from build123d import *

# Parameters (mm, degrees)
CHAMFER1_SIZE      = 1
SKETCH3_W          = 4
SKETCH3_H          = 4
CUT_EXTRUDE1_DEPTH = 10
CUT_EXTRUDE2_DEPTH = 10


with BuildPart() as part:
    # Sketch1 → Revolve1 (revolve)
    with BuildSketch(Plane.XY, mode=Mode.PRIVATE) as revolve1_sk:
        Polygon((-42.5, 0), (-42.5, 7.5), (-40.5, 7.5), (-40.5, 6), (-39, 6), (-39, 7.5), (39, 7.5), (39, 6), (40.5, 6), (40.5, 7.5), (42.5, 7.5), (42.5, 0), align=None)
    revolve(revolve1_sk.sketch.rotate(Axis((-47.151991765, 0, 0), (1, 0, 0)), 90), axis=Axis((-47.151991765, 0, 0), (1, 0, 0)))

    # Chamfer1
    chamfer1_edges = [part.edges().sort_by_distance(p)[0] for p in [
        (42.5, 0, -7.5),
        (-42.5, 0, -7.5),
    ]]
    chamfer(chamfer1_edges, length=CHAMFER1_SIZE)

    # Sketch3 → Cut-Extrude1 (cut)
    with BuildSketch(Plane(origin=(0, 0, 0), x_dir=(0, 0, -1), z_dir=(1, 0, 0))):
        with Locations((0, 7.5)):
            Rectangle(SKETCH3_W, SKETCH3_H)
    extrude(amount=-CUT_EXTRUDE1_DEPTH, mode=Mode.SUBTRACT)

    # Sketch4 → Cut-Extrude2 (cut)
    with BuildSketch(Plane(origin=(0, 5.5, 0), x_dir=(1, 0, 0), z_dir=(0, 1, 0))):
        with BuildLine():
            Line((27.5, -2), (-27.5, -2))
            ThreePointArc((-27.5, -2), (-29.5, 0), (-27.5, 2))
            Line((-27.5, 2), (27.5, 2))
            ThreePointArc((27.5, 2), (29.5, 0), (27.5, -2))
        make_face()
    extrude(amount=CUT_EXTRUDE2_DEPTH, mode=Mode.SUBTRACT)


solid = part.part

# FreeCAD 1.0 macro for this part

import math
import FreeCAD as App
import Part
import Sketcher
Q = App.Units.Quantity


def edges_at(feature, points):
    """Names of the edges that pass closest to the given points."""
    edges = feature.Shape.Edges
    near = lambda p: min(range(len(edges)), key=lambda i: edges[i].distToShape(Part.Vertex(*p))[0])
    return sorted({f"Edge{near(p) + 1}" for p in points})

doc = App.newDocument("Part")
body = doc.addObject("PartDesign::Body", "Body")

# Sketch on XY plane
sketch1 = doc.addObject("Sketcher::SketchObject", "Sketch")
body.addObject(sketch1)
sketch1.AttachmentSupport = (doc.XY_Plane, [""])
sketch1.MapMode = "FlatFace"
sketch1.addGeometry([
    Part.LineSegment(App.Vector(-42.5, 7.5, 0), App.Vector(-42.5, 0, 0)),  # 0
    Part.LineSegment(App.Vector(-42.5, 0, 0), App.Vector(42.5, 0, 0)),  # 1
    Part.LineSegment(App.Vector(42.5, 0, 0), App.Vector(42.5, 7.5, 0)),  # 2
    Part.LineSegment(App.Vector(42.5, 7.5, 0), App.Vector(40.5, 7.5, 0)),  # 3
    Part.LineSegment(App.Vector(40.5, 7.5, 0), App.Vector(40.5, 6, 0)),  # 4
    Part.LineSegment(App.Vector(40.5, 6, 0), App.Vector(39, 6, 0)),  # 5
    Part.LineSegment(App.Vector(39, 6, 0), App.Vector(39, 7.5, 0)),  # 6
    Part.LineSegment(App.Vector(39, 7.5, 0), App.Vector(-39, 7.5, 0)),  # 7
    Part.LineSegment(App.Vector(-39, 7.5, 0), App.Vector(-39, 6, 0)),  # 8
    Part.LineSegment(App.Vector(-39, 6, 0), App.Vector(-40.5, 6, 0)),  # 9
    Part.LineSegment(App.Vector(-40.5, 6, 0), App.Vector(-40.5, 7.5, 0)),  # 10
    Part.LineSegment(App.Vector(-40.5, 7.5, 0), App.Vector(-42.5, 7.5, 0)),  # 11
], False)
sketch1.addConstraint([
    Sketcher.Constraint("Coincident", 0, 2, 1, 1),
    Sketcher.Constraint("Coincident", 1, 2, 2, 1),
    Sketcher.Constraint("Coincident", 2, 2, 3, 1),
    Sketcher.Constraint("Coincident", 3, 2, 4, 1),
    Sketcher.Constraint("Coincident", 4, 2, 5, 1),
    Sketcher.Constraint("Coincident", 5, 2, 6, 1),
    Sketcher.Constraint("Coincident", 6, 2, 7, 1),
    Sketcher.Constraint("Coincident", 7, 2, 8, 1),
    Sketcher.Constraint("Coincident", 8, 2, 9, 1),
    Sketcher.Constraint("Coincident", 9, 2, 10, 1),
    Sketcher.Constraint("Coincident", 10, 2, 11, 1),
    Sketcher.Constraint("Coincident", 11, 2, 0, 1),
    Sketcher.Constraint("Vertical", 0),
    Sketcher.Constraint("Horizontal", 1),
    Sketcher.Constraint("Vertical", 2),
    Sketcher.Constraint("Horizontal", 3),
    Sketcher.Constraint("Vertical", 4),
    Sketcher.Constraint("Horizontal", 5),
    Sketcher.Constraint("Vertical", 6),
    Sketcher.Constraint("Horizontal", 7),
    Sketcher.Constraint("Vertical", 8),
    Sketcher.Constraint("Horizontal", 9),
    Sketcher.Constraint("Vertical", 10),
    Sketcher.Constraint("Horizontal", 11),
    Sketcher.Constraint("Symmetric", 0, 2, 1, 2, -1, 1),
    Sketcher.Constraint("Symmetric", 5, 2, 8, 2, -2),
    Sketcher.Constraint("Symmetric", 3, 2, 10, 2, -2),
    Sketcher.Constraint("Horizontal", 3, 2, 6, 2),
    Sketcher.Constraint("Equal", 9, 4),
    Sketcher.Constraint("DistanceX", 1, 1, 1, 2, Q("85 mm")),
    Sketcher.Constraint("DistanceX", 3, 2, 3, 1, Q("2 mm")),
    Sketcher.Constraint("DistanceX", 7, 2, 7, 1, Q("78 mm")),
    Sketcher.Constraint("DistanceY", 0, 2, 0, 1, Q("7.5 mm")),
])
revolution = doc.addObject("PartDesign::Revolution", "Revolution")
body.addObject(revolution)
revolution.Profile = sketch1
revolution.ReferenceAxis = (sketch1, ["H_Axis"])
revolution.Angle = 360
doc.recompute()

chamfer = doc.addObject("PartDesign::Chamfer", "Chamfer")
body.addObject(chamfer)
chamfer.Base = (revolution, edges_at(revolution, [(42.5, 0, -7.5), (-42.5, 0, -7.5)]))
chamfer.Size = 1

# Sketch on YZ plane
sketch2 = doc.addObject("Sketcher::SketchObject", "Sketch001")
body.addObject(sketch2)
sketch2.AttachmentSupport = (doc.YZ_Plane, [""])
sketch2.MapMode = "FlatFace"
sketch2.addGeometry([
    Part.LineSegment(App.Vector(9.5, 2, 0), App.Vector(5.5, 2, 0)),
    Part.LineSegment(App.Vector(5.5, 2, 0), App.Vector(5.5, -2, 0)),
    Part.LineSegment(App.Vector(5.5, -2, 0), App.Vector(9.5, -2, 0)),
    Part.LineSegment(App.Vector(9.5, -2, 0), App.Vector(9.5, 2, 0)),
], False)
sketch2.addConstraint([
    Sketcher.Constraint("Coincident", 0, 2, 1, 1),
    Sketcher.Constraint("Coincident", 1, 2, 2, 1),
    Sketcher.Constraint("Coincident", 2, 2, 3, 1),
    Sketcher.Constraint("Coincident", 3, 2, 0, 1),
    Sketcher.Constraint("Horizontal", 0),
    Sketcher.Constraint("Vertical", 1),
    Sketcher.Constraint("Horizontal", 2),
    Sketcher.Constraint("Vertical", 3),
    Sketcher.Constraint("Equal", 2, 1),
    Sketcher.Constraint("DistanceX", 0, 2, 0, 1, Q("4 mm")),
    Sketcher.Constraint("DistanceY", -1, 1, 0, 2, Q("2 mm")),
    Sketcher.Constraint("DistanceX", -1, 1, 0, 2, Q("5.5 mm")),
])
pocket1 = doc.addObject("PartDesign::Pocket", "Pocket")
body.addObject(pocket1)
pocket1.Profile = sketch2
pocket1.Length = 10

# Sketch on XZ plane
sketch3 = doc.addObject("Sketcher::SketchObject", "Sketch002")
body.addObject(sketch3)
sketch3.AttachmentSupport = (doc.XZ_Plane, [""])
sketch3.MapMode = "FlatFace"
sketch3.AttachmentOffset = App.Placement(App.Vector(0, 0, -5.5), App.Rotation())
sketch3.addGeometry([
    Part.LineSegment(App.Vector(-27.5, 2, 0), App.Vector(27.5, 2, 0)),
    Part.ArcOfCircle(Part.Circle(App.Vector(27.5, 0, 0), App.Vector(0, 0, 1), 2), math.radians(-90), math.radians(90)),
    Part.LineSegment(App.Vector(27.5, -2, 0), App.Vector(-27.5, -2, 0)),
    Part.ArcOfCircle(Part.Circle(App.Vector(-27.5, 0, 0), App.Vector(0, 0, 1), 2), math.radians(90), math.radians(270)),
], False)
sketch3.addConstraint([
    Sketcher.Constraint("Tangent", 0, 2, 1, 2),
    Sketcher.Constraint("Tangent", 1, 1, 2, 1),
    Sketcher.Constraint("Tangent", 2, 2, 3, 2),
    Sketcher.Constraint("Tangent", 3, 1, 0, 1),
    Sketcher.Constraint("Horizontal", 0),
    Sketcher.Constraint("Horizontal", 2),
    Sketcher.Constraint("Symmetric", 1, 3, 3, 3, -1, 1),
    Sketcher.Constraint("Radius", 1, Q("2 mm")),
    Sketcher.Constraint("DistanceX", 0, 1, 0, 2, Q("55 mm")),
])
pocket2 = doc.addObject("PartDesign::Pocket", "Pocket001")
body.addObject(pocket2)
pocket2.Profile = sketch3
pocket2.Length = 10

doc.recompute()
